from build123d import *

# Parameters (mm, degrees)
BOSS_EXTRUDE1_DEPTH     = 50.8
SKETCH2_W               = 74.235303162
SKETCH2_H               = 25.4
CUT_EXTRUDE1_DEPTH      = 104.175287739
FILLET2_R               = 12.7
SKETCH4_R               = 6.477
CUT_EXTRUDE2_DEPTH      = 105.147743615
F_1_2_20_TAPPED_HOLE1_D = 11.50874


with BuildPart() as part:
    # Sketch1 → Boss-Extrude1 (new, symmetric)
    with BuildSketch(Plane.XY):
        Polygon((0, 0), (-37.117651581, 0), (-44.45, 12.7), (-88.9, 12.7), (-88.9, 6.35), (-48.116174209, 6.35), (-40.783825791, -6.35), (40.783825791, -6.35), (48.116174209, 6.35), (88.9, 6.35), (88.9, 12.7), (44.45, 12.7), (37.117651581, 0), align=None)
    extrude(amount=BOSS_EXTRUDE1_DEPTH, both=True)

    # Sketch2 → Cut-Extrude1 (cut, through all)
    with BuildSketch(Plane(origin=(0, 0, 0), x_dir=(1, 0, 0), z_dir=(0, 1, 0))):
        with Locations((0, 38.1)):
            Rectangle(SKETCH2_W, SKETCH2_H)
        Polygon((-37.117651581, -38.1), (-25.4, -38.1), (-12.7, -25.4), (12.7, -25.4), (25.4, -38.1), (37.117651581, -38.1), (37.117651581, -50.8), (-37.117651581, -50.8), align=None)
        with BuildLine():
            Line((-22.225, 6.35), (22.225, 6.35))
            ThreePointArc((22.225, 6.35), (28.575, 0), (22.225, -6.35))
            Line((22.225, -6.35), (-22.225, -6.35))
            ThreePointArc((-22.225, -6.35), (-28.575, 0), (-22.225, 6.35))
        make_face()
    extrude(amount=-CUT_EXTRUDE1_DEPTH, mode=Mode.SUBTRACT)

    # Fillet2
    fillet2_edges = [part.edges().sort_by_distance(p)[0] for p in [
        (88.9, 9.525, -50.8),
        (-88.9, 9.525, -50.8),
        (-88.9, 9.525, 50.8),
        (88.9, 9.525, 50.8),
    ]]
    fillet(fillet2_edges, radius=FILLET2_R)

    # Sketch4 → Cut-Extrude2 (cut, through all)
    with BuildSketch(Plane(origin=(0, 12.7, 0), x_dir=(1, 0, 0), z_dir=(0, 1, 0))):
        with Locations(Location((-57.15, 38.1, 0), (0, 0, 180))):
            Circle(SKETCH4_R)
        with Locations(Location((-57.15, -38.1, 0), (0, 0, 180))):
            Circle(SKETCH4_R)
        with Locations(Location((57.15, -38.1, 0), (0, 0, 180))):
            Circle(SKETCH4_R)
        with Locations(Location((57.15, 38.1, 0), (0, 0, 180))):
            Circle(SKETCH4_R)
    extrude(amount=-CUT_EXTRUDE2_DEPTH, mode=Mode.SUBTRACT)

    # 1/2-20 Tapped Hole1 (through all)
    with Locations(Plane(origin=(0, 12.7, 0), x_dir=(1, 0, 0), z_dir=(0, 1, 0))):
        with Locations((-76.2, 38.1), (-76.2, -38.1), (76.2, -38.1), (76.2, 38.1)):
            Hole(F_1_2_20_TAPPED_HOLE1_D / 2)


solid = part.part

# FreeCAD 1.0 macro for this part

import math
import FreeCAD as App
import Part
import Sketcher
from FreeCAD import Vector
Q = App.Units.Quantity


def edges_at(feature, points):
    """Names of the edges that pass closest to the given points."""
    edges = feature.Shape.Edges
    near = lambda p: min(range(len(edges)), key=lambda i: edges[i].distToShape(Part.Vertex(*p))[0])
    return sorted({f"Edge{near(p) + 1}" for p in points})


def add_polygon(sketch, points):
    """Adds a closed chain of lines whose ends are joined by coincident constraints."""
    first, n = sketch.GeometryCount, len(points)
    for a, b in zip(points, points[1:] + points[:1]):
        sketch.addGeometry(Part.LineSegment(App.Vector(*a, 0), App.Vector(*b, 0)), False)
    for i in range(n):
        sketch.addConstraint(Sketcher.Constraint("Coincident", first + i, 2, first + (i + 1) % n, 1))

doc = App.newDocument("Part")
body = doc.addObject("PartDesign::Body", "Body")

# Sketch on XY plane
sketch1 = body.newObject("Sketcher::SketchObject", "Sketch")
sketch1.AttachmentSupport = (doc.getObject("XY_Plane"), [""])
sketch1.MapMode = "FlatFace"
add_polygon(sketch1, [(-37, 0), (-44, 13), (-89, 13), (-89, 6), (-48, 6), (-41, -6), (41, -6), (48, 6), (89, 6), (89, 13), (44, 13), (37, 0)])  # lines 0-11
sketch1.addConstraint([
    Sketcher.Constraint("Horizontal", 1),
    Sketcher.Constraint("Vertical", 2),
    Sketcher.Constraint("Horizontal", 3),
    Sketcher.Constraint("Horizontal", 5),
    Sketcher.Constraint("Horizontal", 7),
    Sketcher.Constraint("Vertical", 8),
    Sketcher.Constraint("Horizontal", 9),
    Sketcher.Constraint("Horizontal", 11),
    Sketcher.Constraint("Symmetric", 10, 2, 11, 2, -1, 1),
    Sketcher.Constraint("Symmetric", 3, 2, 6, 2, -2),
    Sketcher.Constraint("Symmetric", 1, 2, 8, 2, -2),
    Sketcher.Constraint("Parallel", 0, 4),
    Sketcher.Constraint("Parallel", 6, 10),
    Sketcher.Constraint("Equal", 1, 9),
    Sketcher.Constraint("Equal", 0, 4),
    Sketcher.Constraint("Angle", 0, Q("120 deg")),
    Sketcher.Constraint("DistanceX", 1, 2, 1, 1, Q("1.75 in")),
    Sketcher.Constraint("DistanceY", 2, 2, 2, 1, Q("0.25 in")),
    Sketcher.Constraint("DistanceY", -1, 1, 0, 2, Q("0.5 in")),
    Sketcher.Constraint("DistanceX", 1, 2, -1, 1, Q("3.5 in")),
    Sketcher.Constraint("DistanceX", 3, 2, 5, 2, Q("3.5 in")),
])
pad1 = body.newObject("PartDesign::Pad", "Pad")
pad1.Profile = sketch1
pad1.Length = Q("4 in")
pad1.Midplane = True

# Sketch on XZ plane
sketch2 = body.newObject("Sketcher::SketchObject", "Sketch001")
sketch2.AttachmentSupport = (doc.getObject("XZ_Plane"), [""])
sketch2.MapMode = "FlatFace"
add_polygon(sketch2, [(-37, -51), (-37, -25), (37, -25), (37, -51)])  # lines 0-3
add_polygon(sketch2, [(-25, 38), (-37, 38), (-37, 51), (37, 51), (37, 38), (25, 38), (13, 25), (-13, 25)])  # lines 4-11
sketch2.addGeometry(Part.LineSegment(Vector(22, -6, 0), Vector(-22, -6, 0)), False)  # 12
sketch2.addGeometry(Part.ArcOfCircle(Part.Circle(Vector(-22, 0, 0), Vector(0, 0, 1), 6), math.radians(90), math.radians(270)), False)  # 13
sketch2.addGeometry(Part.LineSegment(Vector(-22, 6, 0), Vector(22, 6, 0)), False)  # 14
sketch2.addGeometry(Part.ArcOfCircle(Part.Circle(Vector(22, 0, 0), Vector(0, 0, 1), 6), math.radians(-90), math.radians(90)), False)  # 15
sketch2.addConstraint([
    Sketcher.Constraint("Tangent", 12, 2, 13, 2),
    Sketcher.Constraint("Tangent", 13, 1, 14, 1),
    Sketcher.Constraint("Tangent", 14, 2, 15, 2),
    Sketcher.Constraint("Tangent", 15, 1, 12, 1),
    Sketcher.Constraint("Vertical", 0),
    Sketcher.Constraint("Horizontal", 1),
    Sketcher.Constraint("Vertical", 2),
    Sketcher.Constraint("Horizontal", 3),
    Sketcher.Constraint("Horizontal", 4),
    Sketcher.Constraint("Vertical", 5),
    Sketcher.Constraint("Horizontal", 6),
    Sketcher.Constraint("Vertical", 7),
    Sketcher.Constraint("Horizontal", 8),
    Sketcher.Constraint("Horizontal", 10),
    Sketcher.Constraint("Horizontal", 12),
    Sketcher.Constraint("Horizontal", 14),
    Sketcher.Constraint("Symmetric", 13, 3, 15, 3, -1, 1),
    Sketcher.Constraint("Symmetric", 2, 2, 5, 2, -1, 1),
    Sketcher.Constraint("Symmetric", 4, 2, 7, 2, -2),
    Sketcher.Constraint("Perpendicular", 9, 11),
    Sketcher.Constraint("Vertical", 3, 2, 4, 2),
    Sketcher.Constraint("Equal", 4, 8),
    Sketcher.Constraint("Equal", 10, 0),
    Sketcher.Constraint("Equal", 9, 11),
    Sketcher.Constraint("DistanceX", 10, 2, 10, 1, Q("1 in")),
    Sketcher.Constraint("Radius", 13, Q("0.25 in")),
    Sketcher.Constraint("DistanceY", 5, 1, 5, 2, Q("0.5 in")),
    Sketcher.Constraint("DistanceY", 0, 2, -1, 1, Q("1 in")),
    Sketcher.Constraint("DistanceX", -1, 1, 8, 2, Q("1 in")),
    Sketcher.Constraint("DistanceX", 12, 2, 12, 1, Q("1.75 in")),
    Sketcher.Constraint("DistanceX", 4, 2, 4, 1, Q("11.717652 mm")),
])
pocket1 = body.newObject("PartDesign::Pocket", "Pocket")
pocket1.Profile = sketch2
pocket1.Type = "ThroughAll"
pocket1.Reversed = True
doc.recompute()

fillet = body.newObject("PartDesign::Fillet", "Fillet")
fillet.Base = (pocket1, edges_at(pocket1, [
    (88.9, 9.525, -50.8),
    (-88.9, 9.525, -50.8),
    (-88.9, 9.525, 50.8),
    (88.9, 9.525, 50.8),
]))
fillet.Radius = Q("0.5 in")

# Sketch on XZ plane
sketch3 = body.newObject("Sketcher::SketchObject", "Sketch002")
sketch3.AttachmentSupport = (doc.getObject("XZ_Plane"), [""])
sketch3.MapMode = "FlatFace"
sketch3.AttachmentOffset = App.Placement(Vector(0, 0, -0.5 * 25.4), App.Rotation())
sketch3.addGeometry([
    Part.Circle(Vector(-57, -38, 0), Vector(0, 0, 1), 6),
    Part.Circle(Vector(-57, 38, 0), Vector(0, 0, 1), 6),
    Part.Circle(Vector(57, 38, 0), Vector(0, 0, 1), 6),
    Part.Circle(Vector(57, -38, 0), Vector(0, 0, 1), 6),
], False)
sketch3.addConstraint([
    Sketcher.Constraint("Equal", 0, 1),
    Sketcher.Constraint("Equal", 1, 2),
    Sketcher.Constraint("Equal", 2, 3),
    Sketcher.Constraint("Symmetric", 0, 3, 2, 3, -1, 1),
    Sketcher.Constraint("Symmetric", 1, 3, 3, 3, -1, 1),
    Sketcher.Constraint("Symmetric", 1, 3, 2, 3, -2),
    Sketcher.Constraint("Diameter", 0, Q("0.51 in")),
    Sketcher.Constraint("DistanceY", 0, 3, 1, 3, Q("3 in")),
    Sketcher.Constraint("DistanceX", 1, 3, 2, 3, Q("4.5 in")),
])
pocket2 = body.newObject("PartDesign::Pocket", "Pocket001")
pocket2.Profile = sketch3
pocket2.Type = "ThroughAll"
pocket2.Reversed = True

# Sketch on XZ plane
sketch4 = body.newObject("Sketcher::SketchObject", "Sketch003")
sketch4.AttachmentSupport = (doc.getObject("XZ_Plane"), [""])
sketch4.MapMode = "FlatFace"
sketch4.AttachmentOffset = App.Placement(Vector(0, 0, -0.5 * 25.4), App.Rotation())
sketch4.addGeometry([
    Part.Circle(Vector(-76, -38, 0), Vector(0, 0, 1), 6),
    Part.Circle(Vector(-76, 38, 0), Vector(0, 0, 1), 6),
    Part.Circle(Vector(76, 38, 0), Vector(0, 0, 1), 6),
    Part.Circle(Vector(76, -38, 0), Vector(0, 0, 1), 6),
], False)
sketch4.addConstraint([
    Sketcher.Constraint("Equal", 0, 1),
    Sketcher.Constraint("Equal", 1, 2),
    Sketcher.Constraint("Equal", 2, 3),
    Sketcher.Constraint("Symmetric", 0, 3, 2, 3, -1, 1),
    Sketcher.Constraint("Symmetric", 1, 3, 3, 3, -1, 1),
    Sketcher.Constraint("Symmetric", 1, 3, 2, 3, -2),
    Sketcher.Constraint("DistanceX", 0, 3, -1, 1, Q("3 in")),
    Sketcher.Constraint("DistanceY", 0, 3, 1, 3, Q("3 in")),
    Sketcher.Constraint("Diameter", 0, Q("0.4531 in")),
])
doc.recompute()
hole = body.newObject("PartDesign::Hole", "Hole")
hole.Profile = sketch4
hole.ThreadType = "None"
hole.Diameter = Q("0.4531 in")
hole.DepthType = "ThroughAll"
hole.Reversed = True

doc.recompute()
